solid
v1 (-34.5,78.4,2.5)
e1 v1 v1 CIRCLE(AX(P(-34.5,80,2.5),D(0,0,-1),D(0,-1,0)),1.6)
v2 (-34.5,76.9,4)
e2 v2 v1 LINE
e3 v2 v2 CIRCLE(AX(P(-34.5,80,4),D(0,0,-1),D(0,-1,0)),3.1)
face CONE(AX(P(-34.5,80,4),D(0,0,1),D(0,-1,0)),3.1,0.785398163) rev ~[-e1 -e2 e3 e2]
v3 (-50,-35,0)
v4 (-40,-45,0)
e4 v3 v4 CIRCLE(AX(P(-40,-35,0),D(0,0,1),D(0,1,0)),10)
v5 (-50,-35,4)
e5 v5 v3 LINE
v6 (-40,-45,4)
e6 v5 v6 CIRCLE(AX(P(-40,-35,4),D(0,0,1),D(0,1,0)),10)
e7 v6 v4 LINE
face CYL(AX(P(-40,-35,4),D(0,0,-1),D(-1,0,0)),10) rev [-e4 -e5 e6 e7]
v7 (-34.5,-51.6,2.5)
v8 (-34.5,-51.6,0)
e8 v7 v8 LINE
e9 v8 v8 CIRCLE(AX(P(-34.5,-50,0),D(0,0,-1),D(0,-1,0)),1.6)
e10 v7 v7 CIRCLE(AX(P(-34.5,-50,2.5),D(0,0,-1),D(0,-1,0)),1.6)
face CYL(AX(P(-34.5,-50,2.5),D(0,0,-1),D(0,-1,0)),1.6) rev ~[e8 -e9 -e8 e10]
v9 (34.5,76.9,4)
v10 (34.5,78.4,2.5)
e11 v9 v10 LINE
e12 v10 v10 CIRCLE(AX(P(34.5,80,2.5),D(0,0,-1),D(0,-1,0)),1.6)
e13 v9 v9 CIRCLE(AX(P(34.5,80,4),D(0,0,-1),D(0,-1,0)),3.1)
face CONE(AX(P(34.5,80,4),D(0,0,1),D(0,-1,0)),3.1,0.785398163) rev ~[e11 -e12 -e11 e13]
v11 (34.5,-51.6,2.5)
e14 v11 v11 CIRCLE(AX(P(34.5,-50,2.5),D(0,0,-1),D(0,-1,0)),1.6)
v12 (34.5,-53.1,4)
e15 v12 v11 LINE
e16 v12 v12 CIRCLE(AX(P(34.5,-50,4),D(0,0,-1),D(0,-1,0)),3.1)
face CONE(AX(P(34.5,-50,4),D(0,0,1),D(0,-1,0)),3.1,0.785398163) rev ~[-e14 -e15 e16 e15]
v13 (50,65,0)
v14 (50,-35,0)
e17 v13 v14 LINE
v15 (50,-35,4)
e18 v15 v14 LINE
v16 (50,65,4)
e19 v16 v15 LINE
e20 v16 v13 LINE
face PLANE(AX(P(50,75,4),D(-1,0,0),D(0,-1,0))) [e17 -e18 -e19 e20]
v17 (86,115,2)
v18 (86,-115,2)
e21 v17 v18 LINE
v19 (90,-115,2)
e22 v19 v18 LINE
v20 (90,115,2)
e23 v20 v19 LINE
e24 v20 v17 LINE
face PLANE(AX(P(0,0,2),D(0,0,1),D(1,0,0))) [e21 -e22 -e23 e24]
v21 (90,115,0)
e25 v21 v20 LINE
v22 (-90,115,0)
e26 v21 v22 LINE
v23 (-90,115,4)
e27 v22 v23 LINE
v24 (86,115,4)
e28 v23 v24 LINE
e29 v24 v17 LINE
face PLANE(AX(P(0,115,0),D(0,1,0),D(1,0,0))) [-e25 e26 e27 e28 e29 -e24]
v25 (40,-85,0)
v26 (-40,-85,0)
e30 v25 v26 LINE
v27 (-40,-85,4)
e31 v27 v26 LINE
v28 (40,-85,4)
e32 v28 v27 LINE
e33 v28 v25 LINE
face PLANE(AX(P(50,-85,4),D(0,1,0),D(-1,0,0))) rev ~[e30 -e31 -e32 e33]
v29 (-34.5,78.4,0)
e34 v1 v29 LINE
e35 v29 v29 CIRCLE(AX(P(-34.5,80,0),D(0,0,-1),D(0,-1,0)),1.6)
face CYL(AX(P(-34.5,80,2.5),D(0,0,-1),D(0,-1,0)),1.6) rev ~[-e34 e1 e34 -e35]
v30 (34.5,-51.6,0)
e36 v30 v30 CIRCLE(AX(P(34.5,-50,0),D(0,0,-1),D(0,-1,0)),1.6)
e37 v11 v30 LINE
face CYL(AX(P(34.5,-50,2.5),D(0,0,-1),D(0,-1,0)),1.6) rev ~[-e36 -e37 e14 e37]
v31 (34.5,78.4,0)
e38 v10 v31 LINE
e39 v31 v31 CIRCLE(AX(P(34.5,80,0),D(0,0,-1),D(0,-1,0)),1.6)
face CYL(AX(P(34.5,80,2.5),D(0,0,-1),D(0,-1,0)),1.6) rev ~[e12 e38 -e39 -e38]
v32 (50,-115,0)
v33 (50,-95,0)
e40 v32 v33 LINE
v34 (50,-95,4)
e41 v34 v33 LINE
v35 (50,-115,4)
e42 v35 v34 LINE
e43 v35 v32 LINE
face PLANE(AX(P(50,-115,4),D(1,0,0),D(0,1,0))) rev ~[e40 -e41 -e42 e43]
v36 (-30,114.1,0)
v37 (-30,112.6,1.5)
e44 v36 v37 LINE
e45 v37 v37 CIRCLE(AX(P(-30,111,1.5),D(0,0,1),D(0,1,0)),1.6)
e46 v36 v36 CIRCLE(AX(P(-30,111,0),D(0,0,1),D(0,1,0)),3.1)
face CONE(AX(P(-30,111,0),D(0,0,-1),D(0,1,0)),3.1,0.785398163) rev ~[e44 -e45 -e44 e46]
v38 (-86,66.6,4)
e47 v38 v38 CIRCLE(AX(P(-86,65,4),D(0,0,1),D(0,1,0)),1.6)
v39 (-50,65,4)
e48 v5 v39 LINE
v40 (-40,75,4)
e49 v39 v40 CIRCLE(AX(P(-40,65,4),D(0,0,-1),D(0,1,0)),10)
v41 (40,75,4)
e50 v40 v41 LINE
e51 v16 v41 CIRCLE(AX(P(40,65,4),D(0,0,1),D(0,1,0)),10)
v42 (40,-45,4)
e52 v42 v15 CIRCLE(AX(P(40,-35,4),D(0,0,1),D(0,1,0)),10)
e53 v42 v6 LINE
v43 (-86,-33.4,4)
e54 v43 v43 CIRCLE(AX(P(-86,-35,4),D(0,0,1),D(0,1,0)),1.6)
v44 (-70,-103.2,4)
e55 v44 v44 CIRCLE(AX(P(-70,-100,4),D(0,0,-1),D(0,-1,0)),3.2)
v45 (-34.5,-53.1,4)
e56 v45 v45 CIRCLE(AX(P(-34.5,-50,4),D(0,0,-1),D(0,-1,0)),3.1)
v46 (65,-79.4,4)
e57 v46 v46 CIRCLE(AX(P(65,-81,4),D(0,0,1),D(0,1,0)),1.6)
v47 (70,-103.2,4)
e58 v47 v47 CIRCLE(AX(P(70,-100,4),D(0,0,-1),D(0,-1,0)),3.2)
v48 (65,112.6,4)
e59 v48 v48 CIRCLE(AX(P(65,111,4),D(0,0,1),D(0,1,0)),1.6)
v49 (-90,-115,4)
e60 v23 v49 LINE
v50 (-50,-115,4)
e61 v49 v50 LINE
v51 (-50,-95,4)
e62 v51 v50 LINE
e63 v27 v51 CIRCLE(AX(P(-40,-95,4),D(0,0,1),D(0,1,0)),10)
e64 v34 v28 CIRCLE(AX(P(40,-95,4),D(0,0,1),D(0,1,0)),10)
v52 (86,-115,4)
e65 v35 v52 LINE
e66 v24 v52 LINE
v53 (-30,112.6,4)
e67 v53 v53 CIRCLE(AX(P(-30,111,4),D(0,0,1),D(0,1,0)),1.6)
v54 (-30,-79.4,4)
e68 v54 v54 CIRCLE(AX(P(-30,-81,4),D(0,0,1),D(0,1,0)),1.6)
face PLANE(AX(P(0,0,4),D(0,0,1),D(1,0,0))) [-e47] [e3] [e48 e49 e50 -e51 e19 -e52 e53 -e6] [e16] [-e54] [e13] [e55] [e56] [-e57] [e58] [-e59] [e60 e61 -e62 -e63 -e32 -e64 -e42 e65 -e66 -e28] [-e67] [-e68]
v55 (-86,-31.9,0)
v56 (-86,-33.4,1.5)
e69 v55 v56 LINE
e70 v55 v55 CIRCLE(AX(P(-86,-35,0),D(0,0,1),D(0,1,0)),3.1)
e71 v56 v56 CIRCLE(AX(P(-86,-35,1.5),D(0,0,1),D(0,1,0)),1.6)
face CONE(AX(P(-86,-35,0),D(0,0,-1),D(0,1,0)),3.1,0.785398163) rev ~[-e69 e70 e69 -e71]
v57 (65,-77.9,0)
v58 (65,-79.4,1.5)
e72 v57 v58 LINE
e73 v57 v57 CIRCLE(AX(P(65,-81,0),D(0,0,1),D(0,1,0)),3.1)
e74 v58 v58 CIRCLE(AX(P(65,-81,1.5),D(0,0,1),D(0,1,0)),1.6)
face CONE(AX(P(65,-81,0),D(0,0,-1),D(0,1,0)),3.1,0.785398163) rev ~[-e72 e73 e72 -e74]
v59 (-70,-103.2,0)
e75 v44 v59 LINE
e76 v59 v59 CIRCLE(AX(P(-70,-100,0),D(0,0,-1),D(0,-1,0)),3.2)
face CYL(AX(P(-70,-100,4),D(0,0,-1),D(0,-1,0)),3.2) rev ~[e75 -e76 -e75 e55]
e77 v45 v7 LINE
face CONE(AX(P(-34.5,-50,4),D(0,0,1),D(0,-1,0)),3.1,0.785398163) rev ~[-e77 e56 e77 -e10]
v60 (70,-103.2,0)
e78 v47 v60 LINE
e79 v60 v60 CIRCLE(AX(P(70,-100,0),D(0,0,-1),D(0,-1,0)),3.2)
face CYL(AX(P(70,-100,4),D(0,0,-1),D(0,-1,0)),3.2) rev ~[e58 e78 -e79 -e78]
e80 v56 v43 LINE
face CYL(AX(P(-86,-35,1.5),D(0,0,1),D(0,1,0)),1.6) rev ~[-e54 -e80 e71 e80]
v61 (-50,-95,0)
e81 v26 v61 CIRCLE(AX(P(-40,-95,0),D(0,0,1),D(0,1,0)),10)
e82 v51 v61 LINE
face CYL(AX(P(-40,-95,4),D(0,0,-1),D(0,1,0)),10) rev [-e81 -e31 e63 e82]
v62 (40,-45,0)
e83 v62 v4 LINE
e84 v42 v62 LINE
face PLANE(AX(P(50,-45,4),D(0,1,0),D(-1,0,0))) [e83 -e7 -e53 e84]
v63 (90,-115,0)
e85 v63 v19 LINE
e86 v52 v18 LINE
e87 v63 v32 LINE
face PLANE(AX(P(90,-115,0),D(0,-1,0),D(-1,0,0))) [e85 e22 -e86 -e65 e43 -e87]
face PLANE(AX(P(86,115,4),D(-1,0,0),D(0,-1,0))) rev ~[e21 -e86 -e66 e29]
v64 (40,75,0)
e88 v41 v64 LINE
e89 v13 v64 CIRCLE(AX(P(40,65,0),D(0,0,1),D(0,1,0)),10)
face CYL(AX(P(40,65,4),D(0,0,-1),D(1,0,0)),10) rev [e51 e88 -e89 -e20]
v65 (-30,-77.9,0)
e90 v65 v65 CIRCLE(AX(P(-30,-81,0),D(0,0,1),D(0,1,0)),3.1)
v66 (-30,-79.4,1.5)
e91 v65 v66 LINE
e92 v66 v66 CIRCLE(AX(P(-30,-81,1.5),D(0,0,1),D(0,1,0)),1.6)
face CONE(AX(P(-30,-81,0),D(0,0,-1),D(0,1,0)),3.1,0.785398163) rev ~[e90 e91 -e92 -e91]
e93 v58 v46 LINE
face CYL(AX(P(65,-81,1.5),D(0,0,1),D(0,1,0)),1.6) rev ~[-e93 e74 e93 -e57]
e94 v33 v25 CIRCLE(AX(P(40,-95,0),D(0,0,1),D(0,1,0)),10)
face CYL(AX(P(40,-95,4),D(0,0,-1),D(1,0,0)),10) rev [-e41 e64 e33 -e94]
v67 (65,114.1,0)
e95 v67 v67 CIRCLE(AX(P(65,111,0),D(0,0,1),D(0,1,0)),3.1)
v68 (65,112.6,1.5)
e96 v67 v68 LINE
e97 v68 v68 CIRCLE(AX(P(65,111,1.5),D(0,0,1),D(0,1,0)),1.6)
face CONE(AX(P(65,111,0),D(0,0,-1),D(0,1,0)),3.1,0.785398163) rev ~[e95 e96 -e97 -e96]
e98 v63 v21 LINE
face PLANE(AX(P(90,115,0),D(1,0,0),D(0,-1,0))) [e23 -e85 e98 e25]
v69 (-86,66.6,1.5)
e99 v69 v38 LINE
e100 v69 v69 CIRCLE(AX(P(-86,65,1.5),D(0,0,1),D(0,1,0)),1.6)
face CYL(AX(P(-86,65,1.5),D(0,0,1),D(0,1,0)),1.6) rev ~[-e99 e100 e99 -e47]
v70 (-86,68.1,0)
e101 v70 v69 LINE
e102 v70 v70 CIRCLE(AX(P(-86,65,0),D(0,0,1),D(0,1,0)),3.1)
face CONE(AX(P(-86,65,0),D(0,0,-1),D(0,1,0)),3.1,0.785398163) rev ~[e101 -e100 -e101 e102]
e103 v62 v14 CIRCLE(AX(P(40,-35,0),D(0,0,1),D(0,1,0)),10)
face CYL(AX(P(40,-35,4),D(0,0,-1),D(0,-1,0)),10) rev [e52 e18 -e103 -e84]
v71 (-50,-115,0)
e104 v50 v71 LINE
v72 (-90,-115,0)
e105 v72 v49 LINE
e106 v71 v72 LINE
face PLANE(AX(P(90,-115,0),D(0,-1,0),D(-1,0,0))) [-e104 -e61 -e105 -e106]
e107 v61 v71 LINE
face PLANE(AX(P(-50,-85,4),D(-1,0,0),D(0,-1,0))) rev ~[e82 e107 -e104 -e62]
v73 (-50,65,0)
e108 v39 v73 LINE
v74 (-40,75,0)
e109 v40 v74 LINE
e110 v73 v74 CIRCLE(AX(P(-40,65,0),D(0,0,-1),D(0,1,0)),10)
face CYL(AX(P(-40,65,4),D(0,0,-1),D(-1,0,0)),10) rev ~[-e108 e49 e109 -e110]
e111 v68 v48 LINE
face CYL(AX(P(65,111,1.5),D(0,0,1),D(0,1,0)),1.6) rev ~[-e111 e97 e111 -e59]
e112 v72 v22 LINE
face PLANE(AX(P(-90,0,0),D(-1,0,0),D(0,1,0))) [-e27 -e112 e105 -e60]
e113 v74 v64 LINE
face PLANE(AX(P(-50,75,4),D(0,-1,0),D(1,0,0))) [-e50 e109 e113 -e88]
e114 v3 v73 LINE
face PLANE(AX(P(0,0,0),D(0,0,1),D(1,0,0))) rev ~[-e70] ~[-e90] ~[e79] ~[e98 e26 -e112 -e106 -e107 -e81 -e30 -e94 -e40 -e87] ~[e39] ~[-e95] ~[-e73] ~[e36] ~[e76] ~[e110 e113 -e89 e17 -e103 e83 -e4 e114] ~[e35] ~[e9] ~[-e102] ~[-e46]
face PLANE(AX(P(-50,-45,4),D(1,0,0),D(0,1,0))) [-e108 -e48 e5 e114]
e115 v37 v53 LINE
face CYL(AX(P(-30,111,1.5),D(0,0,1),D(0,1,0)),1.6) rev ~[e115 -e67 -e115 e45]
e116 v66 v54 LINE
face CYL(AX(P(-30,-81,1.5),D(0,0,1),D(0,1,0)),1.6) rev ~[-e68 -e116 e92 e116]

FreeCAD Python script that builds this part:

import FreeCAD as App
import Part
import Sketcher

V = App.Vector


def edges_at(feature, points):
    """Names of the edges that pass closest to the given points."""
    edges = feature.Shape.Edges
    near = lambda p: min(range(len(edges)), key=lambda i: edges[i].distToShape(Part.Vertex(*p))[0])
    return sorted({f"Edge{near(p) + 1}" for p in points})


def add_polygon(sketch, points):
    """Adds a closed chain of lines whose ends are joined by coincident constraints."""
    first, n = sketch.GeometryCount, len(points)
    for a, b in zip(points, points[1:] + points[:1]):
        sketch.addGeometry(Part.LineSegment(App.Vector(*a, 0), App.Vector(*b, 0)), False)
    for i in range(n):
        sketch.addConstraint(Sketcher.Constraint("Coincident", first + i, 2, first + (i + 1) % n, 1))

doc = App.newDocument("Part")
body = doc.addObject("PartDesign::Body", "Body")

sketch1 = body.newObject("Sketcher::SketchObject", "Sketch")
sketch1.AttachmentSupport = (doc.getObject("XY_Plane"), [""])
sketch1.MapMode = "FlatFace"
add_polygon(sketch1, [(90, 115), (-90, 115), (-90, -115), (90, -115)])
sketch1.addConstraint([
    Sketcher.Constraint("Horizontal", 0),
    Sketcher.Constraint("Vertical", 1),
    Sketcher.Constraint("Horizontal", 2),
    Sketcher.Constraint("Vertical", 3),
    Sketcher.Constraint("Symmetric", 0, 2, 2, 2, -1, 1),
    Sketcher.Constraint("DistanceX", 0, 2, 0, 1, 180.0),
    Sketcher.Constraint("DistanceY", 1, 2, 1, 1, 230.0),
])
pad1 = body.newObject("PartDesign::Pad", "Pad")
pad1.Profile = sketch1
pad1.Length = 4

sketch2 = body.newObject("Sketcher::SketchObject", "Sketch001")
sketch2.AttachmentSupport = (doc.getObject("XY_Plane"), [""])
sketch2.MapMode = "FlatFace"
sketch2.AttachmentOffset = App.Placement(V(0, 0, 4), App.Rotation())
sketch2.addGeometry([
    Part.Circle(V(-70, -100, 0), V(0, 0, 1), 3.2),
    Part.Circle(V(70, -100, 0), V(0, 0, 1), 3.2),
], False)
sketch2.addConstraint([
    Sketcher.Constraint("Equal", 0, 1),
    Sketcher.Constraint("Symmetric", 0, 3, 1, 3, -2),
    Sketcher.Constraint("Diameter", 0, 6.4),
    Sketcher.Constraint("DistanceX", 0, 3, -1, 1, 70.0),
    Sketcher.Constraint("DistanceY", 0, 3, -1, 1, 100.0),
])
doc.recompute()
hole = body.newObject("PartDesign::Hole", "Hole")
hole.Profile = sketch2
hole.ThreadType = "None"
hole.Diameter = 6.4
hole.DepthType = "ThroughAll"

sketch3 = body.newObject("Sketcher::SketchObject", "Sketch002")
sketch3.AttachmentSupport = (doc.getObject("XY_Plane"), [""])
sketch3.MapMode = "FlatFace"
sketch3.AttachmentOffset = App.Placement(V(0, 0, 4), App.Rotation())
add_polygon(sketch3, [(86, -115), (90, -115), (90, 115), (86, 115)])
sketch3.addConstraint([
    Sketcher.Constraint("Horizontal", 0),
    Sketcher.Constraint("Vertical", 1),
    Sketcher.Constraint("Horizontal", 2),
    Sketcher.Constraint("Vertical", 3),
    Sketcher.Constraint("DistanceX", 0, 1, 0, 2, 4.0),
    Sketcher.Constraint("DistanceY", 1, 1, 1, 2, 230.0),
    Sketcher.Constraint("DistanceX", -1, 1, 0, 2, 90.0),
    Sketcher.Constraint("DistanceY", 0, 2, -1, 1, 115.0),
])
pocket1 = body.newObject("PartDesign::Pocket", "Pocket")
pocket1.Profile = sketch3
pocket1.Length = 2

sketch4 = body.newObject("Sketcher::SketchObject", "Sketch003")
sketch4.AttachmentSupport = (doc.getObject("XY_Plane"), [""])
sketch4.MapMode = "FlatFace"
sketch4.AttachmentOffset = App.Placement(V(0, 0, 4), App.Rotation())
add_polygon(sketch4, [(50, 75), (-50, 75), (-50, -45), (50, -45)])
sketch4.addConstraint([
    Sketcher.Constraint("Horizontal", 0),
    Sketcher.Constraint("Vertical", 1),
    Sketcher.Constraint("Horizontal", 2),
    Sketcher.Constraint("Vertical", 3),
    Sketcher.Constraint("DistanceX", 0, 2, 0, 1, 100.0),
    Sketcher.Constraint("DistanceY", 1, 2, 1, 1, 120.0),
    Sketcher.Constraint("DistanceX", 0, 2, -1, 1, 50.0),
    Sketcher.Constraint("DistanceY", -1, 1, 0, 2, 75.0),
])
pocket2 = body.newObject("PartDesign::Pocket", "Pocket001")
pocket2.Profile = sketch4
pocket2.Type = "ThroughAll"
doc.recompute()

fillet = body.newObject("PartDesign::Fillet", "Fillet")
fillet.Base = (pocket2, edges_at(pocket2, [
    (-50, 75, 2),
    (50, 75, 2),
    (50, -45, 2),
    (-50, -45, 2),
]))
fillet.Radius = 10

sketch5 = body.newObject("Sketcher::SketchObject", "Sketch004")
sketch5.AttachmentSupport = (doc.getObject("XY_Plane"), [""])
sketch5.MapMode = "FlatFace"
sketch5.AttachmentOffset = App.Placement(V(0, 0, 4), App.Rotation())
add_polygon(sketch5, [(-50, -115), (50, -115), (50, -85), (-50, -85)])
sketch5.addConstraint([
    Sketcher.Constraint("Horizontal", 0),
    Sketcher.Constraint("Vertical", 1),
    Sketcher.Constraint("Horizontal", 2),
    Sketcher.Constraint("Vertical", 3),
    Sketcher.Constraint("DistanceX", 0, 1, 0, 2, 100.0),
    Sketcher.Constraint("DistanceY", 1, 1, 1, 2, 30.0),
    Sketcher.Constraint("DistanceX", -1, 1, 0, 2, 50.0),
    Sketcher.Constraint("DistanceY", 0, 2, -1, 1, 115.0),
])
pocket3 = body.newObject("PartDesign::Pocket", "Pocket002")
pocket3.Profile = sketch5
pocket3.Type = "ThroughAll"
doc.recompute()

fillet2 = body.newObject("PartDesign::Fillet", "Fillet001")
fillet2.Base = (pocket3, edges_at(pocket3, [(-50, -85, 2), (50, -85, 2)]))
fillet2.Radius = 10

sketch6 = body.newObject("Sketcher::SketchObject", "Sketch005")
sketch6.AttachmentSupport = (doc.getObject("XY_Plane"), [""])
sketch6.MapMode = "FlatFace"
sketch6.addGeometry([
    Part.Circle(V(65, 111, 0), V(0, 0, 1), 1.6),
    Part.Circle(V(-30, 111, 0), V(0, 0, 1), 1.6),
    Part.Circle(V(-86, 65, 0), V(0, 0, 1), 1.6),
    Part.Circle(V(-86, -35, 0), V(0, 0, 1), 1.6),
    Part.Circle(V(-30, -81, 0), V(0, 0, 1), 1.6),
    Part.Circle(V(65, -81, 0), V(0, 0, 1), 1.6),
], False)
sketch6.addConstraint([
    Sketcher.Constraint("Equal", 0, 1),
    Sketcher.Constraint("Equal", 1, 2),
    Sketcher.Constraint("Equal", 2, 3),
    Sketcher.Constraint("Equal", 3, 4),
    Sketcher.Constraint("Equal", 4, 5),
    Sketcher.Constraint("Horizontal", 0, 3, 1, 3),
    Sketcher.Constraint("Horizontal", 4, 3, 5, 3),
    Sketcher.Constraint("Vertical", 2, 3, 3, 3),
    Sketcher.Constraint("Vertical", 1, 3, 4, 3),
    Sketcher.Constraint("Vertical", 0, 3, 5, 3),
    Sketcher.Constraint("Diameter", 0, 3.2),
    Sketcher.Constraint("DistanceX", -1, 1, 0, 3, 65.0),
    Sketcher.Constraint("DistanceY", -1, 1, 0, 3, 111.0),
    Sketcher.Constraint("DistanceX", 1, 3, -1, 1, 30.0),
    Sketcher.Constraint("DistanceX", 2, 3, -1, 1, 86.0),
    Sketcher.Constraint("DistanceY", -1, 1, 2, 3, 65.0),
    Sketcher.Constraint("DistanceY", 3, 3, -1, 1, 35.0),
    Sketcher.Constraint("DistanceY", 4, 3, -1, 1, 81.0),
])
doc.recompute()
hole2 = body.newObject("PartDesign::Hole", "Hole001")
hole2.Profile = sketch6
hole2.ThreadType = "None"
hole2.Diameter = 3.2
hole2.DepthType = "ThroughAll"
hole2.HoleCutType = "Countersink"
hole2.HoleCutDiameter = 6.2
hole2.HoleCutCountersinkAngle = 90
hole2.Reversed = True

sketch7 = body.newObject("Sketcher::SketchObject", "Sketch006")
sketch7.AttachmentSupport = (doc.getObject("XY_Plane"), [""])
sketch7.MapMode = "FlatFace"
sketch7.AttachmentOffset = App.Placement(V(0, 0, 4), App.Rotation())
sketch7.addGeometry([
    Part.Circle(V(-34.5, -50, 0), V(0, 0, 1), 1.6),
    Part.Circle(V(34.5, -50, 0), V(0, 0, 1), 1.6),
    Part.Circle(V(34.5, 80, 0), V(0, 0, 1), 1.6),
    Part.Circle(V(-34.5, 80, 0), V(0, 0, 1), 1.6),
], False)
sketch7.addConstraint([
    Sketcher.Constraint("Equal", 0, 1),
    Sketcher.Constraint("Equal", 1, 2),
    Sketcher.Constraint("Equal", 2, 3),
    Sketcher.Constraint("Symmetric", 0, 3, 1, 3, -2),
    Sketcher.Constraint("Symmetric", 2, 3, 3, 3, -2),
    Sketcher.Constraint("Vertical", 1, 3, 2, 3),
    Sketcher.Constraint("Diameter", 0, 3.2),
    Sketcher.Constraint("DistanceY", 0, 3, -1, 1, 50.0),
    Sketcher.Constraint("DistanceY", -1, 1, 2, 3, 80.0),
    Sketcher.Constraint("DistanceX", 0, 3, 1, 3, 69.0),
])
doc.recompute()
hole3 = body.newObject("PartDesign::Hole", "Hole002")
hole3.Profile = sketch7
hole3.ThreadType = "None"
hole3.Diameter = 3.2
hole3.DepthType = "ThroughAll"
hole3.HoleCutType = "Countersink"
hole3.HoleCutDiameter = 6.2
hole3.HoleCutCountersinkAngle = 90

doc.recompute()
